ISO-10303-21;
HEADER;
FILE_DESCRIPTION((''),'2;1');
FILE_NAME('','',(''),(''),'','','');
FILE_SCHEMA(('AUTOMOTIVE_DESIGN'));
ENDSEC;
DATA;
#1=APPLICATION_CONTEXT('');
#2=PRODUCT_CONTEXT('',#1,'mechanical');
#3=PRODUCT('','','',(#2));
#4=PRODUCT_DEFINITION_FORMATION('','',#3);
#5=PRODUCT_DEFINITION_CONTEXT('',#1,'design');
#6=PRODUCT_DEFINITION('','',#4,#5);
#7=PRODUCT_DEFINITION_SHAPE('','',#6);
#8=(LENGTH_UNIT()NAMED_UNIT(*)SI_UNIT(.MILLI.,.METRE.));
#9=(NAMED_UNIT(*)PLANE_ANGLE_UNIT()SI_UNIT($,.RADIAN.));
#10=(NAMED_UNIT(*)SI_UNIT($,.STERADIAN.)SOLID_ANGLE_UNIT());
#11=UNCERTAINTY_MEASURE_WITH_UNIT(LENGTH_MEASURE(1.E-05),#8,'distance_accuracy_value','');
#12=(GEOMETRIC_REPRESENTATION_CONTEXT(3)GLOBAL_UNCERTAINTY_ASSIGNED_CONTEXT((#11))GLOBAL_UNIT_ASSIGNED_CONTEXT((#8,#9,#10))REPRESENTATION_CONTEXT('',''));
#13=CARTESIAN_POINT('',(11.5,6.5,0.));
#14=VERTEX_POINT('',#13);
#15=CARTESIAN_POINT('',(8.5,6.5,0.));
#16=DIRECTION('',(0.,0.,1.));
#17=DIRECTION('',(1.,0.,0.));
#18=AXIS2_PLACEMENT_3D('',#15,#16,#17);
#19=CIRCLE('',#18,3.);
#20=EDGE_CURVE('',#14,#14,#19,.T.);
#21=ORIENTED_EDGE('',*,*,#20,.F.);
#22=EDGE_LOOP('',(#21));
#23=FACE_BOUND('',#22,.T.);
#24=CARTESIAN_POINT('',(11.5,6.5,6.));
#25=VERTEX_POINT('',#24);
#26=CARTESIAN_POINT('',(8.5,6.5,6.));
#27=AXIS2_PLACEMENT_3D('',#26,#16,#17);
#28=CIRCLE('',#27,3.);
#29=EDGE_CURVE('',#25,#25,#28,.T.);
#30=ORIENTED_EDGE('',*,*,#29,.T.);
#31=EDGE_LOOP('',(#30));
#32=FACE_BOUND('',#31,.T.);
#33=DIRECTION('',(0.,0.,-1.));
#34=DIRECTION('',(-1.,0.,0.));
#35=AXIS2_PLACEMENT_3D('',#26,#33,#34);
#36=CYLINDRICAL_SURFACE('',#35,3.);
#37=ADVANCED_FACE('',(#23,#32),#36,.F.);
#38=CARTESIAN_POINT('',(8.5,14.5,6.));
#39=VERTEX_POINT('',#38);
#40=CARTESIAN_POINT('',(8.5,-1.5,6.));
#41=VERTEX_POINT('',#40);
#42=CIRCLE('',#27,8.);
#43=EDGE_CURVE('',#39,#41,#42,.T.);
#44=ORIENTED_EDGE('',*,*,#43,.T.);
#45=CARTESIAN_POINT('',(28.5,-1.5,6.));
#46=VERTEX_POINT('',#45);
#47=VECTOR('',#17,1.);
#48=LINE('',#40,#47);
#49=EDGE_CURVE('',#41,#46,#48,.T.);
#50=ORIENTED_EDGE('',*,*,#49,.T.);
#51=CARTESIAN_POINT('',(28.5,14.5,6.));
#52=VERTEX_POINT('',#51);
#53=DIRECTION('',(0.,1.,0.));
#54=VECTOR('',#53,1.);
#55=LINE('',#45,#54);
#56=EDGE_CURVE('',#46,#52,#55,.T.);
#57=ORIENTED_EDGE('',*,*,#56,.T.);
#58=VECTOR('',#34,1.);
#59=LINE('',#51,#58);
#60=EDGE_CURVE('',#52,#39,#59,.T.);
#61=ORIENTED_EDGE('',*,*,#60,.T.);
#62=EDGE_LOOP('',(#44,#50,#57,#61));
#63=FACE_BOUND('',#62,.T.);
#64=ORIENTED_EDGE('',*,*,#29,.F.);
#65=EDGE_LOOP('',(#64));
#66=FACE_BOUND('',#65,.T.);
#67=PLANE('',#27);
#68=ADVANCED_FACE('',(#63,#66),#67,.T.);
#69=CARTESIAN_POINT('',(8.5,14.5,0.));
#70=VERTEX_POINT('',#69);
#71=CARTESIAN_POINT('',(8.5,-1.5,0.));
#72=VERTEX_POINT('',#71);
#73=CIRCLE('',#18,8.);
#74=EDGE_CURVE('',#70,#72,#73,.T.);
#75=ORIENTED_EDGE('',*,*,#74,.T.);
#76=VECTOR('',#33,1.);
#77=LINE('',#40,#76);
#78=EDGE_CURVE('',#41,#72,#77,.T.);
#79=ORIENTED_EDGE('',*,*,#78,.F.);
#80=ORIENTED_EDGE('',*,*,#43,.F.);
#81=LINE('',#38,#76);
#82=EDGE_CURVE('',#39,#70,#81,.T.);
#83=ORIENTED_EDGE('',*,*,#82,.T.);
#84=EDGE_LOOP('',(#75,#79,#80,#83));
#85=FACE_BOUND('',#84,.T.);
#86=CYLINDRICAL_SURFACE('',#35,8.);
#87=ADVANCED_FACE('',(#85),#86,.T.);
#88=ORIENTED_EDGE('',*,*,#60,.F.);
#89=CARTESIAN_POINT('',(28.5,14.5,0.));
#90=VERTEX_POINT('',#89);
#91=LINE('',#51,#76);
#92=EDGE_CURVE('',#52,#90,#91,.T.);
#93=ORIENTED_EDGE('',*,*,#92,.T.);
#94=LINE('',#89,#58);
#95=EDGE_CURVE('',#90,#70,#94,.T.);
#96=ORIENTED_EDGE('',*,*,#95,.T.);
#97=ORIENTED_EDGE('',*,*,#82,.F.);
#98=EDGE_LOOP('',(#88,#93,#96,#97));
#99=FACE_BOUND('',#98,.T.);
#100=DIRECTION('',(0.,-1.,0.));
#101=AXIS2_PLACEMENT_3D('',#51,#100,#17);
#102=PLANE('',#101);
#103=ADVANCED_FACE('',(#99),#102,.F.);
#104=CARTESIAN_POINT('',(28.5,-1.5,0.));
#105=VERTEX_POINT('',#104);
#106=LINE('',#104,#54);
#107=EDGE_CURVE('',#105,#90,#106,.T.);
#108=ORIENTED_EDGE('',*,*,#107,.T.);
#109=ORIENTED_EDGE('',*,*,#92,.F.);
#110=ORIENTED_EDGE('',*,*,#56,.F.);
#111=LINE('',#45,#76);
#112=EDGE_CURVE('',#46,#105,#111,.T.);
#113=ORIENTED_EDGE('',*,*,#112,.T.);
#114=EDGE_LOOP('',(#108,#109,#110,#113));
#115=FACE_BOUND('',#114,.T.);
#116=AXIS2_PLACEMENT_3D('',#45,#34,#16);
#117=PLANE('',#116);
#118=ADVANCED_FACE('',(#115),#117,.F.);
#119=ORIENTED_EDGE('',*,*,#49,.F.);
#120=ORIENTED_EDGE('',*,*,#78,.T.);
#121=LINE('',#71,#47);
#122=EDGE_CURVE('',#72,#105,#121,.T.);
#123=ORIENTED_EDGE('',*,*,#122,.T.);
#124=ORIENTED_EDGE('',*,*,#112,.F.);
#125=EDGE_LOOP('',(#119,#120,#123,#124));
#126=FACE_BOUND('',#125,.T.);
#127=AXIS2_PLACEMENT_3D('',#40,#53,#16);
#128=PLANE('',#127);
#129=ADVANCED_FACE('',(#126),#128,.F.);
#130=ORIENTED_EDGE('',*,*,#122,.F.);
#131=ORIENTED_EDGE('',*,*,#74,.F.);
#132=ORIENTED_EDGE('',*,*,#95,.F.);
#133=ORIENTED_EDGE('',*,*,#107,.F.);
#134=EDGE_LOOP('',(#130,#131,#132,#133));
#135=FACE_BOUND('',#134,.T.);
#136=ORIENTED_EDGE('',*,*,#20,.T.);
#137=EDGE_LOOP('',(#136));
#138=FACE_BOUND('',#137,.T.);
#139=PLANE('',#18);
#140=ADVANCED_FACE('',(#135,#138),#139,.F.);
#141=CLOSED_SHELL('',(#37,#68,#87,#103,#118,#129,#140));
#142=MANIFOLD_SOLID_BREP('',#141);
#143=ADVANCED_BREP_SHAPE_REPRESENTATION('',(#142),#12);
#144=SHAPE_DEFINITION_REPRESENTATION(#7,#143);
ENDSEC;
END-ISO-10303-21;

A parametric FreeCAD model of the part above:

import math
import FreeCAD as App
import Part
import Sketcher
Q = App.Units.Quantity

doc = App.newDocument("Part")
body = doc.addObject("PartDesign::Body", "Body")

# Sketch on XY plane
sketch1 = doc.addObject("Sketcher::SketchObject", "Sketch")
body.addObject(sketch1)
sketch1.AttachmentSupport = (doc.XY_Plane, [""])
sketch1.MapMode = "FlatFace"
sketch1.addGeometry([
    Part.LineSegment(App.Vector(8.5, -1.5, 0), App.Vector(28.5, -1.5, 0)),  # 0
    Part.LineSegment(App.Vector(28.5, -1.5, 0), App.Vector(28.5, 14.5, 0)),  # 1
    Part.LineSegment(App.Vector(28.5, 14.5, 0), App.Vector(8.5, 14.5, 0)),  # 2
    Part.ArcOfCircle(Part.Circle(App.Vector(8.5, 6.5, 0), App.Vector(0, 0, 1), 8), math.radians(90), math.radians(270)),  # 3
    Part.Circle(App.Vector(8.5, 6.5, 0), App.Vector(0, 0, 1), 3),  # 4
], False)
sketch1.addConstraint([
    Sketcher.Constraint("Coincident", 0, 2, 1, 1),
    Sketcher.Constraint("Coincident", 1, 2, 2, 1),
    Sketcher.Constraint("Tangent", 2, 2, 3, 1),
    Sketcher.Constraint("Tangent", 3, 2, 0, 1),
    Sketcher.Constraint("Horizontal", 0),
    Sketcher.Constraint("Vertical", 1),
    Sketcher.Constraint("Horizontal", 2),
    Sketcher.Constraint("Coincident", 4, 3, 3, 3),
    Sketcher.Constraint("Diameter", 4, Q("6 mm")),
    Sketcher.Constraint("Radius", 3, Q("8 mm")),
    Sketcher.Constraint("DistanceX", 0, 1, 0, 2, Q("20 mm")),
    Sketcher.Constraint("DistanceX", -1, 1, 3, 3, Q("8.5 mm")),
    Sketcher.Constraint("DistanceY", -1, 1, 3, 3, Q("6.5 mm")),
])
pad1 = doc.addObject("PartDesign::Pad", "Pad")
body.addObject(pad1)
pad1.Profile = sketch1
pad1.Length = 6

doc.recompute()
